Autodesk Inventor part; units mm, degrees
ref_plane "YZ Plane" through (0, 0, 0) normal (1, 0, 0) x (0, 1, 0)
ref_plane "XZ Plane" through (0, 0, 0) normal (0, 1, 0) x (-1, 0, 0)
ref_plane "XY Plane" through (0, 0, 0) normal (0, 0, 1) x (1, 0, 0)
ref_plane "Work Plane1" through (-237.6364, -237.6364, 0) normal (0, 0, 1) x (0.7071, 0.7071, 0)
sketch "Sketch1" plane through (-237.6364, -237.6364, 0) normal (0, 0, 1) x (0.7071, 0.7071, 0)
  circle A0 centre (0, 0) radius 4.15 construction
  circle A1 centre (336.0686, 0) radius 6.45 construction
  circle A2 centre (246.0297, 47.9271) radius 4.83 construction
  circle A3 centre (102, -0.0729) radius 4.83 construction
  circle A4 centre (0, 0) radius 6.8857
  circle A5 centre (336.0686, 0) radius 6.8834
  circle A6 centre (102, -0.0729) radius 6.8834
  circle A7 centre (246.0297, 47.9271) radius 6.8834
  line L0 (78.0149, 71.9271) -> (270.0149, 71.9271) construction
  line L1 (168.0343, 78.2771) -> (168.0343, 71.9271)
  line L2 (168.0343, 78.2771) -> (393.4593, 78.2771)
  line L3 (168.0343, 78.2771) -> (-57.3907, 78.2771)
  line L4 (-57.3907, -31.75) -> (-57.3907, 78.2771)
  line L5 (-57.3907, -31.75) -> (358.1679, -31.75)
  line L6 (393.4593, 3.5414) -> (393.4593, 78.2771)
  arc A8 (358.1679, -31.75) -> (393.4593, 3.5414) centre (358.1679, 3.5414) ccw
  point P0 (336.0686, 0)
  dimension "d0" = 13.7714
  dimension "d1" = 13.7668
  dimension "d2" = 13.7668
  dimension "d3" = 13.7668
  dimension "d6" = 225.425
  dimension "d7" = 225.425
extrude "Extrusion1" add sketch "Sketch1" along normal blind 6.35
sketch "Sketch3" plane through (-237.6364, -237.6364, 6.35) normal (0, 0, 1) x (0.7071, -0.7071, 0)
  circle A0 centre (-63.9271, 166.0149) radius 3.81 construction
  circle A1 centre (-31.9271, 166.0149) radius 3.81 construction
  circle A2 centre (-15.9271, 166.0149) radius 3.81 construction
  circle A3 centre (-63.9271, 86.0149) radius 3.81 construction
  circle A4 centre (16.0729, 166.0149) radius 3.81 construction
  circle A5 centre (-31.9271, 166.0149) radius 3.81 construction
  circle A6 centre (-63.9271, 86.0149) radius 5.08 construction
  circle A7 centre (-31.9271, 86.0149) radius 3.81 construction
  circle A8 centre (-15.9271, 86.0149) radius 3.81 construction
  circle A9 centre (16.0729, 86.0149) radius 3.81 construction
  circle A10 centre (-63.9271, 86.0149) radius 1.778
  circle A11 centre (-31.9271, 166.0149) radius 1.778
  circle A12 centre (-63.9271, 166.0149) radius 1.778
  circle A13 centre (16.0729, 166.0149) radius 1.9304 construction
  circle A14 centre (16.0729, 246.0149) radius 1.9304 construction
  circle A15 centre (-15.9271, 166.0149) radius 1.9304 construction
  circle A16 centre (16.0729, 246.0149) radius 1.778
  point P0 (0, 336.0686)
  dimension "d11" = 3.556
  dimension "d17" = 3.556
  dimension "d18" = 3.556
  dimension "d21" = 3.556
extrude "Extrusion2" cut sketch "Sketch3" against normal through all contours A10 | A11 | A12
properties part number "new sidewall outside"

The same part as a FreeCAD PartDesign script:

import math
import FreeCAD as App
import Part
import Sketcher

V = App.Vector
Q = App.Units.Quantity

doc = App.newDocument("Part")
params = doc.addObject("Spreadsheet::Sheet", "Params")
for row, (alias, value) in enumerate([
    ("sketch1_diameter", "0.542 in"),
    ("sketch1_length", "17.75 in"),
    ("pad1_length", "0.25 in"),
    ("sketch2_diameter", "0.14 in"),
], start=1):
    params.set(f"A{row}", alias)
    params.set(f"B{row}", "=" + value)
    params.setAlias(f"B{row}", alias)

body = doc.addObject("PartDesign::Body", "Body")

# Sketch on XY plane
sketch1 = body.newObject("Sketcher::SketchObject", "Sketch")
sketch1.AttachmentSupport = (doc.getObject("XY_Plane"), [""])
sketch1.MapMode = "FlatFace"
sketch1.addGeometry([
    Part.LineSegment(V(-15, 96, 0), V(-334, -223, 0)),  # 0
    Part.LineSegment(V(-334, -223, 0), V(-256, -301, 0)),  # 1
    Part.LineSegment(V(-256, -301, 0), V(38, -7, 0)),  # 2
    Part.ArcOfCircle(Part.Circle(V(13, 18, 0), V(0, 0, 1), 35), math.radians(-45), math.radians(45)),  # 3
    Part.LineSegment(V(38, 43, 0), V(-15, 96, 0)),  # 4
    Part.Circle(V(-238, -238, 0), V(0, 0, 1), 7),  # 5
    Part.Circle(V(-165, -166, 0), V(0, 0, 1), 7),  # 6
    Part.Circle(V(0, 0, 0), V(0, 0, 1), 7),  # 7
    Part.Circle(V(-98, -30, 0), V(0, 0, 1), 7),  # 8
], False)
sketch1.addConstraint([
    Sketcher.Constraint("Coincident", 0, 2, 1, 1),
    Sketcher.Constraint("Coincident", 1, 2, 2, 1),
    Sketcher.Constraint("Tangent", 2, 2, 3, 1),
    Sketcher.Constraint("Tangent", 3, 2, 4, 1),
    Sketcher.Constraint("Coincident", 4, 2, 0, 1),
    Sketcher.Constraint("Coincident", 7, 3, -1, 1),
    Sketcher.Constraint("Equal", 6, 7),
    Sketcher.Constraint("Equal", 7, 8),
    Sketcher.Constraint("Perpendicular", 0, 1),
    Sketcher.Constraint("Perpendicular", 1, 2),
    Sketcher.Constraint("Perpendicular", 2, 4),
    Sketcher.Constraint("Vertical", 2, 2, 3, 2),
    Sketcher.Constraint("Diameter", 6, Q("0.542 in")),
    Sketcher.Constraint("Diameter", 5, Q("13.7714 mm")),
    Sketcher.Constraint("Distance", 0, Q("17.75 in")),
    Sketcher.Constraint("Radius", 3, Q("35.2914 mm")),
    Sketcher.Constraint("DistanceY", 1, 2, 8, 3, Q("10.665 in")),
    Sketcher.Constraint("DistanceY", -1, 1, 3, 3, Q("0.7138 in")),
    Sketcher.Constraint("DistanceX", 0, 2, -1, 1, Q("13.1326 in")),
    Sketcher.Constraint("DistanceY", 0, 2, -1, 1, Q("8.7743 in")),
    Sketcher.Constraint("DistanceX", 5, 3, 3, 3, Q("9.8724 in")),
    Sketcher.Constraint("DistanceX", 5, 3, 6, 3, Q("2.8416 in")),
    Sketcher.Constraint("DistanceY", 1, 2, 6, 3, Q("5.3191 in")),
    Sketcher.Constraint("DistanceY", 5, 3, 2, 2, Q("9.0871 in")),
    Sketcher.Constraint("DistanceX", 8, 3, -1, 1, Q("97.5567 mm")),
])
sketch1.setExpression("Constraints[12]", "Params.sketch1_diameter")
sketch1.setExpression("Constraints[14]", "Params.sketch1_length")
pad1 = body.newObject("PartDesign::Pad", "Pad")
pad1.Profile = sketch1
pad1.setExpression("Length", "Params.pad1_length")

# Sketch on XY plane
sketch2 = body.newObject("Sketcher::SketchObject", "Sketch001")
sketch2.AttachmentSupport = (doc.getObject("XY_Plane"), [""])
sketch2.MapMode = "FlatFace"
sketch2.AttachmentOffset = App.Placement(V(0, 0, 0.25 * 25.4), App.Rotation())
sketch2.addGeometry([
    Part.Circle(V(-222, -131.6, 0), V(0, 0, 1), 1.8),
    Part.Circle(V(-142.8, -97.7, 0), V(0, 0, 1), 1.8),
    Part.Circle(V(-165.4, -75, 0), V(0, 0, 1), 1.8),
], False)
sketch2.addConstraint([
    Sketcher.Constraint("Equal", 0, 1),
    Sketcher.Constraint("Equal", 1, 2),
    Sketcher.Constraint("Diameter", 0, Q("0.14 in")),
    Sketcher.Constraint("DistanceX", 0, 3, 2, 3, Q("2.2271 in")),
    Sketcher.Constraint("DistanceY", 0, 3, 2, 3, Q("2.2271 in")),
    Sketcher.Constraint("DistanceX", 0, 3, -1, 1, Q("222.018 mm")),
    Sketcher.Constraint("DistanceY", 0, 3, -1, 1, Q("131.6114 mm")),
    Sketcher.Constraint("DistanceX", 1, 3, -1, 1, Q("142.822 mm")),
    Sketcher.Constraint("DistanceY", 1, 3, -1, 1, Q("97.6703 mm")),
])
sketch2.setExpression("Constraints[2]", "Params.sketch2_diameter")
pocket1 = body.newObject("PartDesign::Pocket", "Pocket")
pocket1.Profile = sketch2
pocket1.Type = "ThroughAll"

doc.recompute()
